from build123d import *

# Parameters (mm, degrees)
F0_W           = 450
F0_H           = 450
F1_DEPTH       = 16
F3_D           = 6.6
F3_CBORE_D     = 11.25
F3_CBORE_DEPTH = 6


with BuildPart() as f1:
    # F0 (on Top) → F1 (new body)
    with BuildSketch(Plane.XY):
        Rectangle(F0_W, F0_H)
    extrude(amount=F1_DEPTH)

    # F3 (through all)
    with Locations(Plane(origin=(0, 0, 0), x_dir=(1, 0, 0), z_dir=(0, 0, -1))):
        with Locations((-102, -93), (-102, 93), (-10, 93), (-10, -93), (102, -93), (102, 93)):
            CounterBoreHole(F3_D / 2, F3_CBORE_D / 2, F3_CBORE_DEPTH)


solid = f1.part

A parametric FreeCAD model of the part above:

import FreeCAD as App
import Part
import Sketcher
Q = App.Units.Quantity


def add_polygon(sketch, points):
    """Adds a closed chain of lines whose ends are joined by coincident constraints."""
    first, n = sketch.GeometryCount, len(points)
    for a, b in zip(points, points[1:] + points[:1]):
        sketch.addGeometry(Part.LineSegment(App.Vector(*a, 0), App.Vector(*b, 0)), False)
    for i in range(n):
        sketch.addConstraint(Sketcher.Constraint("Coincident", first + i, 2, first + (i + 1) % n, 1))

doc = App.newDocument("Part")
body = doc.addObject("PartDesign::Body", "Body")

sketch1 = body.newObject("Sketcher::SketchObject", "Sketch")
sketch1.AttachmentSupport = (doc.getObject("XY_Plane"), [""])
sketch1.MapMode = "FlatFace"
add_polygon(sketch1, [(-225, 225), (-225, -225), (225, -225), (225, 225)])
sketch1.addConstraint([
    Sketcher.Constraint("Vertical", 0),
    Sketcher.Constraint("Horizontal", 1),
    Sketcher.Constraint("Vertical", 2),
    Sketcher.Constraint("Horizontal", 3),
    Sketcher.Constraint("Symmetric", 0, 2, 2, 2, -1, 1),
    Sketcher.Constraint("Equal", 3, 0),
    Sketcher.Constraint("DistanceX", 1, 1, 1, 2, Q("450 mm")),
])
pad1 = body.newObject("PartDesign::Pad", "Pad")
pad1.Profile = sketch1
pad1.Length = 16

sketch2 = body.newObject("Sketcher::SketchObject", "Sketch001")
sketch2.AttachmentSupport = (doc.getObject("XY_Plane"), [""])
sketch2.MapMode = "FlatFace"
sketch2.addGeometry([
    Part.Circle(App.Vector(-102, 93, 0), App.Vector(0, 0, 1), 3.3),
    Part.Circle(App.Vector(-102, -93, 0), App.Vector(0, 0, 1), 3.3),
    Part.Circle(App.Vector(-10, -93, 0), App.Vector(0, 0, 1), 3.3),
    Part.Circle(App.Vector(-10, 93, 0), App.Vector(0, 0, 1), 3.3),
    Part.Circle(App.Vector(102, 93, 0), App.Vector(0, 0, 1), 3.3),
    Part.Circle(App.Vector(102, -93, 0), App.Vector(0, 0, 1), 3.3),
], False)
sketch2.addConstraint([
    Sketcher.Constraint("Equal", 0, 1),
    Sketcher.Constraint("Equal", 1, 2),
    Sketcher.Constraint("Equal", 2, 3),
    Sketcher.Constraint("Equal", 3, 4),
    Sketcher.Constraint("Equal", 4, 5),
    Sketcher.Constraint("Symmetric", 1, 3, 4, 3, -1, 1),
    Sketcher.Constraint("Symmetric", 0, 3, 5, 3, -1, 1),
    Sketcher.Constraint("Symmetric", 0, 3, 4, 3, -2),
    Sketcher.Constraint("Symmetric", 2, 3, 3, 3, -1),
    Sketcher.Constraint("Horizontal", 1, 3, 2, 3),
    Sketcher.Constraint("Diameter", 0, Q("6.6 mm")),
    Sketcher.Constraint("DistanceX", 0, 3, -1, 1, Q("102 mm")),
    Sketcher.Constraint("DistanceY", -1, 1, 0, 3, Q("93 mm")),
    Sketcher.Constraint("DistanceX", 2, 3, -1, 1, Q("10 mm")),
])
doc.recompute()
hole = body.newObject("PartDesign::Hole", "Hole")
hole.Profile = sketch2
hole.ThreadType = "None"
hole.Diameter = 6.6
hole.DepthType = "ThroughAll"
hole.HoleCutType = "Counterbore"
hole.HoleCutDiameter = 11.25
hole.HoleCutDepth = 6
hole.Reversed = True

doc.recompute()
